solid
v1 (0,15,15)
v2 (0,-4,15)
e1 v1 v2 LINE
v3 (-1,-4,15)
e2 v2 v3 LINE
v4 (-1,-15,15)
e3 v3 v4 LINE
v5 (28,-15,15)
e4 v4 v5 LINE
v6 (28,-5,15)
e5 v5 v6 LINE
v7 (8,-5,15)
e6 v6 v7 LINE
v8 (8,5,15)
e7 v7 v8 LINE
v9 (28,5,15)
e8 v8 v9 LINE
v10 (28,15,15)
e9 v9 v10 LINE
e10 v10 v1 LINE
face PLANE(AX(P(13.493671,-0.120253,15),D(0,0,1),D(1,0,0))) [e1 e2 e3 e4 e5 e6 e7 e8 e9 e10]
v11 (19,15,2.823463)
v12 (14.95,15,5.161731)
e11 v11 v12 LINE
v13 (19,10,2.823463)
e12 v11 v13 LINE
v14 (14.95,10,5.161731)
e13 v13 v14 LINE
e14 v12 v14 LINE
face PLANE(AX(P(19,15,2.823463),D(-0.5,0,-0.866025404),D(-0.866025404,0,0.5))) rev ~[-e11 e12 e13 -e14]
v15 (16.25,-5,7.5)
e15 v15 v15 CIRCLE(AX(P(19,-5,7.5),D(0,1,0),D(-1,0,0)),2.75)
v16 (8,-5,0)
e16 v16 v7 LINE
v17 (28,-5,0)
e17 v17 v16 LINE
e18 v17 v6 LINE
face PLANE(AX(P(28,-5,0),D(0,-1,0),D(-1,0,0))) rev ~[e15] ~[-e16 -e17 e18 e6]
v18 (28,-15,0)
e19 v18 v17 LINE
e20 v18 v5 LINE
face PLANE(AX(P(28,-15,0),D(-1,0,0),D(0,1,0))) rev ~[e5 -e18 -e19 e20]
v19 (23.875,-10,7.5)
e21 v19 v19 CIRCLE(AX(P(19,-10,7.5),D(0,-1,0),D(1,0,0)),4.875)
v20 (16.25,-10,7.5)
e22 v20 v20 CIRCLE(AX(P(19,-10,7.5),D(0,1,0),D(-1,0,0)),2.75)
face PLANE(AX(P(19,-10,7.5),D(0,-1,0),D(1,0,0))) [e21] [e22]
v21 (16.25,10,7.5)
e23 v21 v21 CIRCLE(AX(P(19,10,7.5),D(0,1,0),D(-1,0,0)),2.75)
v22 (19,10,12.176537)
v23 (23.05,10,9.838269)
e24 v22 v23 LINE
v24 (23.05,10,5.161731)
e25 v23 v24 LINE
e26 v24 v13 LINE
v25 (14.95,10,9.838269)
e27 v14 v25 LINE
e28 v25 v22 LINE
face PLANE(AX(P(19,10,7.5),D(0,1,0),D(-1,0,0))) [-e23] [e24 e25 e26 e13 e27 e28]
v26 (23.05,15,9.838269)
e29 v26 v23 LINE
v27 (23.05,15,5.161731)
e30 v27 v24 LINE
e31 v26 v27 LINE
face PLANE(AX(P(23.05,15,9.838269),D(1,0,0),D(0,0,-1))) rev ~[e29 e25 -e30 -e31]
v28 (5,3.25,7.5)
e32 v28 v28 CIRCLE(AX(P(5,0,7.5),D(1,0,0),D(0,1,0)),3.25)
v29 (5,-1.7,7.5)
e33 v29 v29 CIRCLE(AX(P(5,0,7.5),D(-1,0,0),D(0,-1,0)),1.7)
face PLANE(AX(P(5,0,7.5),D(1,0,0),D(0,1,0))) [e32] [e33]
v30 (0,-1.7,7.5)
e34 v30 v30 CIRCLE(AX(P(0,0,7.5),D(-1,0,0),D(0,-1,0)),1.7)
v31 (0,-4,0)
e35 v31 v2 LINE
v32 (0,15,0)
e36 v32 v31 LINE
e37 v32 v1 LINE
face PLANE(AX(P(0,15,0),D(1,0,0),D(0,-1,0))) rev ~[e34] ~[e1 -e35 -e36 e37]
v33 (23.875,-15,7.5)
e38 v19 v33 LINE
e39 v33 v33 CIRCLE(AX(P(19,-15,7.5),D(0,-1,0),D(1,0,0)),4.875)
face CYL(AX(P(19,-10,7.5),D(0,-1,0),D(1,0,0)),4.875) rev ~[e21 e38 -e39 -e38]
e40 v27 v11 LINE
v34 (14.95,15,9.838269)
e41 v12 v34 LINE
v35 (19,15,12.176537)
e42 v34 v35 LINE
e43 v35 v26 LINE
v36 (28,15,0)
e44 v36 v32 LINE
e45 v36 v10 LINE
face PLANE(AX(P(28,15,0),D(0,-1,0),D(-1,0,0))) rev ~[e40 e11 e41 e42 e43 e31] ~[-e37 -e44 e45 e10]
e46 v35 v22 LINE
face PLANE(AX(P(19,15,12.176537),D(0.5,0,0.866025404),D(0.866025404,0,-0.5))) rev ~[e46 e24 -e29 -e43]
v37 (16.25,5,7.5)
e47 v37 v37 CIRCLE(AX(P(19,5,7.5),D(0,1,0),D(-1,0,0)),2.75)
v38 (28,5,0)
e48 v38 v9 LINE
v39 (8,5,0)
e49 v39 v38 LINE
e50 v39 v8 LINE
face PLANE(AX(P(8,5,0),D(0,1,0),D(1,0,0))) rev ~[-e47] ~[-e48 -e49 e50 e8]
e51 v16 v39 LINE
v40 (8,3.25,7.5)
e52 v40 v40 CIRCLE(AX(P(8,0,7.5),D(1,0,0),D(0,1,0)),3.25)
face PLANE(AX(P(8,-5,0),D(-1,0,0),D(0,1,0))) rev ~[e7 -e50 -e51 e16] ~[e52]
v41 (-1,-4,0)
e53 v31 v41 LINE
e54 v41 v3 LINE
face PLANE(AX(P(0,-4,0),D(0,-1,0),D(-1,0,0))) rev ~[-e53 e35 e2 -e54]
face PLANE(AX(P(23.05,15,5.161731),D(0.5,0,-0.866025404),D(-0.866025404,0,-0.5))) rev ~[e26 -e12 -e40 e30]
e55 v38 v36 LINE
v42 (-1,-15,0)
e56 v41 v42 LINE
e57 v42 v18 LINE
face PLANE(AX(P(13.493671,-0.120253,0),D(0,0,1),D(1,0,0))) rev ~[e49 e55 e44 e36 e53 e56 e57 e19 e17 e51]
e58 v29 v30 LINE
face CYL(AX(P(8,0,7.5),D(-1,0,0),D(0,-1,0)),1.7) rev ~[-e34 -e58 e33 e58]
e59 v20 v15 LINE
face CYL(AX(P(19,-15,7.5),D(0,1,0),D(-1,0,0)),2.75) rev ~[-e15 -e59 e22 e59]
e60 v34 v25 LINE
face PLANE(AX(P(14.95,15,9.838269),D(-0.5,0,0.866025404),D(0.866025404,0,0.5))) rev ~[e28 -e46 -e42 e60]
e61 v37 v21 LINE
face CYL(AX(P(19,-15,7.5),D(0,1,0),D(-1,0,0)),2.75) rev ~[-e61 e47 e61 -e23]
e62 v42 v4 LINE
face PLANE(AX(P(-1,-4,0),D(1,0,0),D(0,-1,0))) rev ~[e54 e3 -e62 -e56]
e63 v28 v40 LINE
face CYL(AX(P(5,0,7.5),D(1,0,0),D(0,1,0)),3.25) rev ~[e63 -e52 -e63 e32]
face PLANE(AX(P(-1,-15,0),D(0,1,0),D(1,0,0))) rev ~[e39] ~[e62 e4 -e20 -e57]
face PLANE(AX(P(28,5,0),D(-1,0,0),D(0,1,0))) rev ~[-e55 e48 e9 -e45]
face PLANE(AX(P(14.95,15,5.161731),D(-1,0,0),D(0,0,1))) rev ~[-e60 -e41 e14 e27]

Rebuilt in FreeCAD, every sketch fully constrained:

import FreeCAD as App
import Part
import Sketcher

V = App.Vector
Q = App.Units.Quantity


def add_polygon(sketch, points):
    """Adds a closed chain of lines whose ends are joined by coincident constraints."""
    first, n = sketch.GeometryCount, len(points)
    for a, b in zip(points, points[1:] + points[:1]):
        sketch.addGeometry(Part.LineSegment(App.Vector(*a, 0), App.Vector(*b, 0)), False)
    for i in range(n):
        sketch.addConstraint(Sketcher.Constraint("Coincident", first + i, 2, first + (i + 1) % n, 1))

doc = App.newDocument("Part")
body = doc.addObject("PartDesign::Body", "Body")

# Sketch on XY plane
sketch1 = body.newObject("Sketcher::SketchObject", "Sketch")
sketch1.AttachmentSupport = (doc.getObject("XY_Plane"), [""])
sketch1.MapMode = "FlatFace"
add_polygon(sketch1, [(0, 15), (0, -4), (-1, -4), (-1, -15), (28, -15), (28, -5), (8, -5), (8, 5), (28, 5), (28, 15)])  # lines 0-9
sketch1.addConstraint([
    Sketcher.Constraint("Vertical", 0),
    Sketcher.Constraint("Horizontal", 1),
    Sketcher.Constraint("Vertical", 2),
    Sketcher.Constraint("Horizontal", 3),
    Sketcher.Constraint("Vertical", 4),
    Sketcher.Constraint("Horizontal", 5),
    Sketcher.Constraint("Vertical", 6),
    Sketcher.Constraint("Horizontal", 7),
    Sketcher.Constraint("Vertical", 8),
    Sketcher.Constraint("Horizontal", 9),
    Sketcher.Constraint("Symmetric", 4, 2, 7, 2, -1),
    Sketcher.Constraint("PointOnObject", 0, 2, -2),
    Sketcher.Constraint("Equal", 4, 6),
    Sketcher.Constraint("Equal", 6, 8),
    Sketcher.Constraint("DistanceX", 1, 2, 1, 1, 1.0),
    Sketcher.Constraint("DistanceX", 3, 1, 3, 2, 29.0),
    Sketcher.Constraint("DistanceX", 5, 2, 5, 1, 20.0),
    Sketcher.Constraint("DistanceY", 0, 2, 0, 1, 19.0),
    Sketcher.Constraint("DistanceY", 2, 2, 2, 1, 11.0),
])
pad1 = body.newObject("PartDesign::Pad", "Pad")
pad1.Profile = sketch1
pad1.Length = 15

# Sketch on XZ plane
sketch2 = body.newObject("Sketcher::SketchObject", "Sketch001")
sketch2.AttachmentSupport = (doc.getObject("XZ_Plane"), [""])
sketch2.MapMode = "FlatFace"
sketch2.AttachmentOffset = App.Placement(V(0, 0, 15), App.Rotation())
sketch2.addGeometry(Part.Circle(V(19, 7.5, 0), V(0, 0, 1), 2.8), False)
sketch2.addConstraint([
    Sketcher.Constraint("Diameter", 0, 5.5),
    Sketcher.Constraint("DistanceX", -1, 1, 0, 3, 19.0),
    Sketcher.Constraint("DistanceY", -1, 1, 0, 3, 7.5),
])
doc.recompute()
hole = body.newObject("PartDesign::Hole", "Hole")
hole.Profile = sketch2
hole.ThreadType = "None"
hole.Diameter = 5.5
hole.DepthType = "ThroughAll"
hole.HoleCutType = "Counterbore"
hole.HoleCutDiameter = 9.75
hole.HoleCutDepth = 5

# Sketch on YZ plane
sketch3 = body.newObject("Sketcher::SketchObject", "Sketch002")
sketch3.AttachmentSupport = (doc.getObject("YZ_Plane"), [""])
sketch3.MapMode = "FlatFace"
sketch3.AttachmentOffset = App.Placement(V(0, 0, 8), App.Rotation())
sketch3.addGeometry(Part.Circle(V(0, 7.5, 0), V(0, 0, 1), 1.7), False)
sketch3.addConstraint([
    Sketcher.Constraint("PointOnObject", 0, 3, -2),
    Sketcher.Constraint("Diameter", 0, 3.4),
    Sketcher.Constraint("DistanceY", -1, 1, 0, 3, 7.5),
])
doc.recompute()
hole2 = body.newObject("PartDesign::Hole", "Hole001")
hole2.Profile = sketch3
hole2.ThreadType = "None"
hole2.Diameter = 3.4
hole2.DepthType = "ThroughAll"
hole2.HoleCutType = "Counterbore"
hole2.HoleCutDiameter = 6.5
hole2.HoleCutDepth = 3

# Sketch on XZ plane
sketch4 = body.newObject("Sketcher::SketchObject", "Sketch003")
sketch4.AttachmentSupport = (doc.getObject("XZ_Plane"), [""])
sketch4.MapMode = "FlatFace"
sketch4.AttachmentOffset = App.Placement(V(0, 0, -15), App.Rotation())
add_polygon(sketch4, [(23.1, 5.2), (19, 2.8), (14.9, 5.2), (14.9, 9.8), (19, 12.2), (23.1, 9.8)])  # lines 0-5
sketch4.addConstraint([
    Sketcher.Constraint("Vertical", 2),
    Sketcher.Constraint("Vertical", 5),
    Sketcher.Constraint("Parallel", 0, 3),
    Sketcher.Constraint("Parallel", 1, 4),
    Sketcher.Constraint("Horizontal", 2, 2, 4, 2),
    Sketcher.Constraint("Horizontal", 1, 2, 5, 2),
    Sketcher.Constraint("Vertical", 0, 2, 3, 2),
    Sketcher.Constraint("Angle", 0, Q("-150 deg")),
    Sketcher.Constraint("DistanceX", -1, 1, 0, 2, 19.0),
    Sketcher.Constraint("DistanceX", 2, 2, 4, 2, 8.1),
    Sketcher.Constraint("DistanceY", 2, 1, 2, 2, 4.676537),
    Sketcher.Constraint("DistanceY", -1, 1, 1, 2, 5.161731),
])
pocket1 = body.newObject("PartDesign::Pocket", "Pocket")
pocket1.Profile = sketch4
pocket1.Length = 5
pocket1.Reversed = True

doc.recompute()
